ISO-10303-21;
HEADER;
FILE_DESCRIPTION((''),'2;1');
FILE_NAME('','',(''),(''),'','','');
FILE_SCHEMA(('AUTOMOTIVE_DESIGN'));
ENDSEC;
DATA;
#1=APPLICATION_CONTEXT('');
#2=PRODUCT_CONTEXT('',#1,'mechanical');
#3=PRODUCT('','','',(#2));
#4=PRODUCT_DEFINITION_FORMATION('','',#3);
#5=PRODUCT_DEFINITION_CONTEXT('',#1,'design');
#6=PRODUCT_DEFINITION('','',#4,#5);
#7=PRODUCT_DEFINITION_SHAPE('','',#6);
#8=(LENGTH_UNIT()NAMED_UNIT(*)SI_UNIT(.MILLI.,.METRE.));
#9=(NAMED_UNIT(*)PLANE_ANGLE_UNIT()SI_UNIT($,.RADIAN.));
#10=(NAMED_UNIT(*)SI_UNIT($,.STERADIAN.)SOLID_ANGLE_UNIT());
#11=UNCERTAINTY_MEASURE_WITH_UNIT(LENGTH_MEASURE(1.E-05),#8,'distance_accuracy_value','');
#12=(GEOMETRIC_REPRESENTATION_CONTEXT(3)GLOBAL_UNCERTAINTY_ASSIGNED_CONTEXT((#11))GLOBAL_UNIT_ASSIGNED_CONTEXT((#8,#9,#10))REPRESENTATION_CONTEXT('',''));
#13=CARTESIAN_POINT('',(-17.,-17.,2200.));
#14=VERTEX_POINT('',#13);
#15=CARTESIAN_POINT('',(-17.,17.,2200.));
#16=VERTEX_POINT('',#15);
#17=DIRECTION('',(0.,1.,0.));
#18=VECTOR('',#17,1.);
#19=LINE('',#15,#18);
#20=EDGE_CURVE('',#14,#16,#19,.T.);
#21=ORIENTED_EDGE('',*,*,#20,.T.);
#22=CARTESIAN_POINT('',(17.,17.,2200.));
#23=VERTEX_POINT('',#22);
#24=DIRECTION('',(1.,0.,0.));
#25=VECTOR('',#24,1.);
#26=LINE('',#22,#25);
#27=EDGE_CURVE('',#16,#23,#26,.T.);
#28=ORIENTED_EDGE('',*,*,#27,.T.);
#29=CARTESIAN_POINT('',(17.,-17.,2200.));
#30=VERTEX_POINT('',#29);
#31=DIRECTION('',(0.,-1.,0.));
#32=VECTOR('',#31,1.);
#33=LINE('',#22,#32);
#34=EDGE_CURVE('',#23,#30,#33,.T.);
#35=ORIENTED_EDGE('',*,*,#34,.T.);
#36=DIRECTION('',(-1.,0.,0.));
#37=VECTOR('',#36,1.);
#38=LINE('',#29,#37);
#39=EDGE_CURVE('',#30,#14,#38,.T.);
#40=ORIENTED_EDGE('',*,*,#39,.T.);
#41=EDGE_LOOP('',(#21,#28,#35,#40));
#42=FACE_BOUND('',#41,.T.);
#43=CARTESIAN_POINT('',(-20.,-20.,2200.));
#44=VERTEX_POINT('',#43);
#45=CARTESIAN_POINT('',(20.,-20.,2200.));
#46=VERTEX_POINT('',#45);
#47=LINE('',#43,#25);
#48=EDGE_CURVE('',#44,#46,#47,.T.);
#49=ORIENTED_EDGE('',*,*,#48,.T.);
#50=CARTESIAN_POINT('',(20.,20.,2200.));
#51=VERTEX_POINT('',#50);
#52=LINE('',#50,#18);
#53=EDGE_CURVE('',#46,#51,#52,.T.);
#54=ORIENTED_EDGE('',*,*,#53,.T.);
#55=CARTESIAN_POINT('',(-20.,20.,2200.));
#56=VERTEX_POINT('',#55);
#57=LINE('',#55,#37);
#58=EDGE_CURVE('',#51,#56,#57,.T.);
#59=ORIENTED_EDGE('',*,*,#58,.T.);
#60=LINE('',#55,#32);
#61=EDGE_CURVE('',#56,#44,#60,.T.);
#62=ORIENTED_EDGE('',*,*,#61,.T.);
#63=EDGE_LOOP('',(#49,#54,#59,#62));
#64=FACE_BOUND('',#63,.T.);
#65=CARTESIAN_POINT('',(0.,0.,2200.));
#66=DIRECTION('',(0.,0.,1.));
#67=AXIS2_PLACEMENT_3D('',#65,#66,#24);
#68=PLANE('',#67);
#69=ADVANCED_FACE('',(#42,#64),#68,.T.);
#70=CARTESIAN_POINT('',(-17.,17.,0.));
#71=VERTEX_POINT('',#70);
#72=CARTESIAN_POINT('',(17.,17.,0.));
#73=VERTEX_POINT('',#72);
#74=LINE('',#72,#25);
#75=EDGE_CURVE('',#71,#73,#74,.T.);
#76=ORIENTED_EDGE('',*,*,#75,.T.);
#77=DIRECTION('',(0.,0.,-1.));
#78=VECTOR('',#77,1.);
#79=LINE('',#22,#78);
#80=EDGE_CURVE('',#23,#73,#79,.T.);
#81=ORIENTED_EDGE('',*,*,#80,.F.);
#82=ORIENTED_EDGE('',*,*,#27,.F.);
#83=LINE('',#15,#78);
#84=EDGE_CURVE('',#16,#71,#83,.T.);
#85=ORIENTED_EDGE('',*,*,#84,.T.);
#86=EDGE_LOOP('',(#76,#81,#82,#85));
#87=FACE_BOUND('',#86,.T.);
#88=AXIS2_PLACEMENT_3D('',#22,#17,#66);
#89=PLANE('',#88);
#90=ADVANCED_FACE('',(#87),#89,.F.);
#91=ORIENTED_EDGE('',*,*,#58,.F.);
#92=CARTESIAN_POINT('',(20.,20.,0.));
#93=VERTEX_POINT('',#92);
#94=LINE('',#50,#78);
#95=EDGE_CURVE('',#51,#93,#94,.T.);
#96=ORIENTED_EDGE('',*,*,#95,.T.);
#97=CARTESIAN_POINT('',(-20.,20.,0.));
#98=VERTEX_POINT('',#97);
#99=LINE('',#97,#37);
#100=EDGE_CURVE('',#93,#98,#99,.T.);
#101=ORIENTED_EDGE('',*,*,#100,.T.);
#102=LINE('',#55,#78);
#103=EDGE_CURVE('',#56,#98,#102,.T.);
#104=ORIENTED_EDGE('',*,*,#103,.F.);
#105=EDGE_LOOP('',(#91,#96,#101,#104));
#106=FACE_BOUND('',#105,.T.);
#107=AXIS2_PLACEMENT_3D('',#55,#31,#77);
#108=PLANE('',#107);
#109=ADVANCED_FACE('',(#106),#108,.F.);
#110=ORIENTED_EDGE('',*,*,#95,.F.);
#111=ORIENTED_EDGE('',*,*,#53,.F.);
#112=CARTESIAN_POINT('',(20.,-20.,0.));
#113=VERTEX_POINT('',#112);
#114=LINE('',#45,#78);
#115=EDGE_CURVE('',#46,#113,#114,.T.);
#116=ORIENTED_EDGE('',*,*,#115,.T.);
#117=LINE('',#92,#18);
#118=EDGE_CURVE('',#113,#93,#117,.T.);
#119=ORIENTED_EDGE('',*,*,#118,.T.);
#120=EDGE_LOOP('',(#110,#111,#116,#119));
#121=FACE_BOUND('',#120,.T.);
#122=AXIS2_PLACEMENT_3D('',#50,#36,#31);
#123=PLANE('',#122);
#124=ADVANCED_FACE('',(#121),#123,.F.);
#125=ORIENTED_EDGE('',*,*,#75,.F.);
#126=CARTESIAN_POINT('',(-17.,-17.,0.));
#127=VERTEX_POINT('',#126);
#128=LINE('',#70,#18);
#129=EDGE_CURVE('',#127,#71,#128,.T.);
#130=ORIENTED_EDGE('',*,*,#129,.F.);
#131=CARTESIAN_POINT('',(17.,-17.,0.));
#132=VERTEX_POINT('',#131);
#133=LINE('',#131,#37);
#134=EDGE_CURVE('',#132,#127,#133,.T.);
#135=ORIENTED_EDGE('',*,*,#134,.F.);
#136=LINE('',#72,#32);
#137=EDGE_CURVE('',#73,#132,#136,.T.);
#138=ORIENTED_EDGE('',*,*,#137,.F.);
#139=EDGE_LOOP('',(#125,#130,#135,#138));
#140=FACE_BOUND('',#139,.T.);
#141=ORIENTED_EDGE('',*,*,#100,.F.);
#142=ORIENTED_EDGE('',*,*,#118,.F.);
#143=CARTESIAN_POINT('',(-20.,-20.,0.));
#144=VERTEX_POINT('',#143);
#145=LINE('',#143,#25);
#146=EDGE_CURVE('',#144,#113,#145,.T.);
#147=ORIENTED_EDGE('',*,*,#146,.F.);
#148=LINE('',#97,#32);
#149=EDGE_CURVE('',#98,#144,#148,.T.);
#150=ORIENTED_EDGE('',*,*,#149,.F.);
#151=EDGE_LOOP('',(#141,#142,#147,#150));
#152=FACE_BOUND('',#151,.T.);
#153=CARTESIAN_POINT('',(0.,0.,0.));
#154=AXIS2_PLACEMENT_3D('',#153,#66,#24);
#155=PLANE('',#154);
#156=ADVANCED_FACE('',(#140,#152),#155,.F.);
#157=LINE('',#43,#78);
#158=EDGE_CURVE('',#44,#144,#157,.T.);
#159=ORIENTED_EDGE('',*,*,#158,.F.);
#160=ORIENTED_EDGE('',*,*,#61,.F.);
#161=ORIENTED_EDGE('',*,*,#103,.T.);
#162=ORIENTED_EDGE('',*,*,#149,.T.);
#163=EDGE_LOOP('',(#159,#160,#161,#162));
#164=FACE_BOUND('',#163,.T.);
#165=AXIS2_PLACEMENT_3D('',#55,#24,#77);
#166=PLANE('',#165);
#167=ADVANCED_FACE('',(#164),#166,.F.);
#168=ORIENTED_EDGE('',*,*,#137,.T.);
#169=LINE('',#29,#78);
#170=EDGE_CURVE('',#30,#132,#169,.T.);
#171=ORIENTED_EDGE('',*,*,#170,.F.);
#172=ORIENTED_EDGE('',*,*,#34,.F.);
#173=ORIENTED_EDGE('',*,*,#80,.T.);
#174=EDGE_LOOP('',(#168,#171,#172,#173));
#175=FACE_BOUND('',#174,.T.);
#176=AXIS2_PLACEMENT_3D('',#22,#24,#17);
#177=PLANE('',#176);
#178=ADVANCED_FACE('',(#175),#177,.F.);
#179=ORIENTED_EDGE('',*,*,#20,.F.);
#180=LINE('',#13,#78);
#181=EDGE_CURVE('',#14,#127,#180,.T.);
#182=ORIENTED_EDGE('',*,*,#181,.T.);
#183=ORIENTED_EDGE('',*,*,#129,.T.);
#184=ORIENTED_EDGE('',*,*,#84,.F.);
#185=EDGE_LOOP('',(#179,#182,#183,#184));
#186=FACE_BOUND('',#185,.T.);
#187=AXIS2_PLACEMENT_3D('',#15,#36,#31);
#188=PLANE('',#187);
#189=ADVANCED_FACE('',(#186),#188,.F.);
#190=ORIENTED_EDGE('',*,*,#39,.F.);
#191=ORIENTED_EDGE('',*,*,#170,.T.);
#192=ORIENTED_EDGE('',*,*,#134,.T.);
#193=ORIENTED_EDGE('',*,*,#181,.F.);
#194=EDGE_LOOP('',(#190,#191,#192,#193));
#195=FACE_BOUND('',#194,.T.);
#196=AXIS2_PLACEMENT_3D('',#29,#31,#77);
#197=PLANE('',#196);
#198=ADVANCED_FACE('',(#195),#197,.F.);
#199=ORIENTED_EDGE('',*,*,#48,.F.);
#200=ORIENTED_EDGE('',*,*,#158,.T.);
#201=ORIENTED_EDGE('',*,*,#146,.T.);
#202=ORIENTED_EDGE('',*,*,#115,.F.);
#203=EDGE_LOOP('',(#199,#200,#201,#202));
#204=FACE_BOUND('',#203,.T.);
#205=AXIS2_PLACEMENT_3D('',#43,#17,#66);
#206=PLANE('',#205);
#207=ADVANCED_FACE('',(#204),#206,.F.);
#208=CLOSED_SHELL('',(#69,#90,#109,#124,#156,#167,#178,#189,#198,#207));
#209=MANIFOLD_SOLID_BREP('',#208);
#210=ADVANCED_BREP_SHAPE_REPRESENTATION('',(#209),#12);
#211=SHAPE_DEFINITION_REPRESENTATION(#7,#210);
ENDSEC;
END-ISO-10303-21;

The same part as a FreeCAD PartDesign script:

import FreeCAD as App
import Part
import Sketcher

V = App.Vector
Q = App.Units.Quantity


def add_polygon(sketch, points):
    """Adds a closed chain of lines whose ends are joined by coincident constraints."""
    first, n = sketch.GeometryCount, len(points)
    for a, b in zip(points, points[1:] + points[:1]):
        sketch.addGeometry(Part.LineSegment(App.Vector(*a, 0), App.Vector(*b, 0)), False)
    for i in range(n):
        sketch.addConstraint(Sketcher.Constraint("Coincident", first + i, 2, first + (i + 1) % n, 1))

doc = App.newDocument("Part")
body = doc.addObject("PartDesign::Body", "Body")

sketch1 = body.newObject("Sketcher::SketchObject", "Sketch")
sketch1.AttachmentSupport = (doc.getObject("XY_Plane"), [""])
sketch1.MapMode = "FlatFace"
add_polygon(sketch1, [(-20, 20), (-20, -20), (20, -20), (20, 20)])
sketch1.addConstraint(Sketcher.Constraint("Vertical", 0))
sketch1.addConstraint(Sketcher.Constraint("Horizontal", 1))
sketch1.addConstraint(Sketcher.Constraint("Vertical", 2))
sketch1.addConstraint(Sketcher.Constraint("Horizontal", 3))
sketch1.addConstraint(Sketcher.Constraint("Symmetric", 0, 2, 2, 2, -1, 1))
sketch1.addConstraint(Sketcher.Constraint("Equal", 3, 0))
sketch1.addConstraint(Sketcher.Constraint("DistanceX", 1, 1, 1, 2, Q("40 mm")))
pad1 = body.newObject("PartDesign::Pad", "Pad")
pad1.Profile = sketch1
pad1.Length = 2200

sketch2 = body.newObject("Sketcher::SketchObject", "Sketch001")
sketch2.AttachmentSupport = (doc.getObject("XY_Plane"), [""])
sketch2.MapMode = "FlatFace"
add_polygon(sketch2, [(17, 17), (17, -17), (-17, -17), (-17, 17)])
sketch2.addConstraint(Sketcher.Constraint("Vertical", 0))
sketch2.addConstraint(Sketcher.Constraint("Horizontal", 1))
sketch2.addConstraint(Sketcher.Constraint("Vertical", 2))
sketch2.addConstraint(Sketcher.Constraint("Horizontal", 3))
sketch2.addConstraint(Sketcher.Constraint("Symmetric", 0, 2, 2, 2, -1, 1))
sketch2.addConstraint(Sketcher.Constraint("Equal", 3, 0))
sketch2.addConstraint(Sketcher.Constraint("DistanceX", 1, 2, 1, 1, Q("34 mm")))
pocket1 = body.newObject("PartDesign::Pocket", "Pocket")
pocket1.Profile = sketch2
pocket1.Length = 2200
pocket1.Reversed = True

doc.recompute()
